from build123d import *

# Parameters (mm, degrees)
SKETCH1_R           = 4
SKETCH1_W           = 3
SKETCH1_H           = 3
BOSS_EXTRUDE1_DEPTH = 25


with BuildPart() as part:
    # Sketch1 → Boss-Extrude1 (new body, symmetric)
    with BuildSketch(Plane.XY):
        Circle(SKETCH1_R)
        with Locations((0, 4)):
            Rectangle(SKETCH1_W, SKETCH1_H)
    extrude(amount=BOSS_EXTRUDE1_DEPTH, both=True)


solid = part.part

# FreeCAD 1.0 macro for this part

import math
import FreeCAD as App
import Part
import Sketcher
Q = App.Units.Quantity

doc = App.newDocument("Part")
body = doc.addObject("PartDesign::Body", "Body")

# Sketch on XY plane
sketch1 = body.newObject("Sketcher::SketchObject", "Sketch")
sketch1.AttachmentSupport = (doc.getObject("XY_Plane"), [""])
sketch1.MapMode = "FlatFace"
sketch1.addGeometry(Part.ArcOfCircle(Part.Circle(App.Vector(0, 0, 0), App.Vector(0, 0, 1), 4), math.radians(112.024313), math.radians(427.975687)), False)
sketch1.addGeometry(Part.LineSegment(App.Vector(1.5, 3.708099, 0), App.Vector(1.5, 5.5, 0)), False)
sketch1.addGeometry(Part.LineSegment(App.Vector(1.5, 5.5, 0), App.Vector(-1.5, 5.5, 0)), False)
sketch1.addGeometry(Part.LineSegment(App.Vector(-1.5, 5.5, 0), App.Vector(-1.5, 3.708099, 0)), False)
sketch1.addConstraint(Sketcher.Constraint("Coincident", 0, 2, 1, 1))
sketch1.addConstraint(Sketcher.Constraint("Coincident", 1, 2, 2, 1))
sketch1.addConstraint(Sketcher.Constraint("Coincident", 2, 2, 3, 1))
sketch1.addConstraint(Sketcher.Constraint("Coincident", 3, 2, 0, 1))
sketch1.addConstraint(Sketcher.Constraint("Vertical", 1))
sketch1.addConstraint(Sketcher.Constraint("Horizontal", 2))
sketch1.addConstraint(Sketcher.Constraint("Vertical", 3))
sketch1.addConstraint(Sketcher.Constraint("Coincident", 0, 3, -1, 1))
sketch1.addConstraint(Sketcher.Constraint("Horizontal", 0, 2, 3, 2))
sketch1.addConstraint(Sketcher.Constraint("Radius", 0, Q("4 mm")))
sketch1.addConstraint(Sketcher.Constraint("DistanceX", 2, 2, 2, 1, Q("3 mm")))
sketch1.addConstraint(Sketcher.Constraint("DistanceY", -1, 1, 1, 2, Q("5.5 mm")))
pad1 = body.newObject("PartDesign::Pad", "Pad")
pad1.Profile = sketch1
pad1.Length = 50
pad1.Midplane = True

doc.recompute()
